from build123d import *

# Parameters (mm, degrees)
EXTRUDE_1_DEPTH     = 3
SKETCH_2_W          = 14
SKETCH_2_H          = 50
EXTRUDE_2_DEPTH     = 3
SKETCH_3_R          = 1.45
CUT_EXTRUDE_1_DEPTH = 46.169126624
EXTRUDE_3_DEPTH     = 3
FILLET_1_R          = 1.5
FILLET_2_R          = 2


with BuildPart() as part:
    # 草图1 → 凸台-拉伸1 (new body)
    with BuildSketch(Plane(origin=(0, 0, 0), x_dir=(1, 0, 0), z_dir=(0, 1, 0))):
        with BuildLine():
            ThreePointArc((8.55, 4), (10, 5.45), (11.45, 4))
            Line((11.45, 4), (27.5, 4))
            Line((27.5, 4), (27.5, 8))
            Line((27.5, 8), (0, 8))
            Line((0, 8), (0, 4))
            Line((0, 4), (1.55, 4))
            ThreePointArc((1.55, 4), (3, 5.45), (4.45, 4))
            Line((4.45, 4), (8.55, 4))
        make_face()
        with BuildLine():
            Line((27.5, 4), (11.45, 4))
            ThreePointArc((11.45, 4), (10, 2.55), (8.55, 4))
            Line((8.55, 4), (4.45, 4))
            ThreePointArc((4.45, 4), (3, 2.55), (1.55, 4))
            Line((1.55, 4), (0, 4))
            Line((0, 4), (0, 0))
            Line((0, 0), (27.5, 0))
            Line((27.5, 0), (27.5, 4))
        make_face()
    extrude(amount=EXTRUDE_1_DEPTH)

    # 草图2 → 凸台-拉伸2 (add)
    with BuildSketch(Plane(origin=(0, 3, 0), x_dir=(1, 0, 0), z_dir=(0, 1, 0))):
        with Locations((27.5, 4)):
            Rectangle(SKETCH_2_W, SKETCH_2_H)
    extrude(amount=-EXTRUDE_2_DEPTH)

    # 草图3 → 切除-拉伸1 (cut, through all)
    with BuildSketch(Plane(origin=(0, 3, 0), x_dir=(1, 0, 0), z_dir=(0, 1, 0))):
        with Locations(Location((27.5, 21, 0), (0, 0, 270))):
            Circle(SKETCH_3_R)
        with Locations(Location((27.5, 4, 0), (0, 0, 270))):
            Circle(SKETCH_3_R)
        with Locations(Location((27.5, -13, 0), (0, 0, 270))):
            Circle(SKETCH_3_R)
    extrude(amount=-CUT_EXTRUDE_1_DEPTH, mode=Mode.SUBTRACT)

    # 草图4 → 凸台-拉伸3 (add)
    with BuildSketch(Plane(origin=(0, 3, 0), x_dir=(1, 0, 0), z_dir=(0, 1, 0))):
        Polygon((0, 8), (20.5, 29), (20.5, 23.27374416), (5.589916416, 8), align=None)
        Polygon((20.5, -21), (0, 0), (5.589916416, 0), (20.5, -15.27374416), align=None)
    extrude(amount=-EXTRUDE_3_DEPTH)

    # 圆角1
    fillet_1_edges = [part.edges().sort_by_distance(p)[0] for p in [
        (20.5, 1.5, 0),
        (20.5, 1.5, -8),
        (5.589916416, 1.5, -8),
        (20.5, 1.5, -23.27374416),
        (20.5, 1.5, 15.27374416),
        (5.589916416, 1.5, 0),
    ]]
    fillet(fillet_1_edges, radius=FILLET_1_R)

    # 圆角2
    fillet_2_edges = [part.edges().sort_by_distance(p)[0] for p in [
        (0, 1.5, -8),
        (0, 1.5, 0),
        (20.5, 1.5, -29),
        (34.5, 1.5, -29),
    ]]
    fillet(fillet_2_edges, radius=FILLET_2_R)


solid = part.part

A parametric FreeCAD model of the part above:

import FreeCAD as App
import Part
import Sketcher

V = App.Vector
Q = App.Units.Quantity


def edges_at(feature, points):
    """Names of the edges that pass closest to the given points."""
    edges = feature.Shape.Edges
    near = lambda p: min(range(len(edges)), key=lambda i: edges[i].distToShape(Part.Vertex(*p))[0])
    return sorted({f"Edge{near(p) + 1}" for p in points})

doc = App.newDocument("Part")
body = doc.addObject("PartDesign::Body", "Body")

# Sketch on XZ plane
sketch1 = body.newObject("Sketcher::SketchObject", "Sketch")
sketch1.AttachmentSupport = (doc.getObject("XZ_Plane"), [""])
sketch1.MapMode = "FlatFace"
sketch1.addGeometry(Part.LineSegment(V(27.5, -8, 0), V(0, -8, 0)), False)
sketch1.addGeometry(Part.LineSegment(V(0, -8, 0), V(0, 0, 0)), False)
sketch1.addGeometry(Part.LineSegment(V(0, 0, 0), V(27.5, 0, 0)), False)
sketch1.addGeometry(Part.LineSegment(V(27.5, 0, 0), V(27.5, -8, 0)), False)
sketch1.addGeometry(Part.Circle(V(10, -4, 0), V(0, 0, 1), 1.4), False)
sketch1.addGeometry(Part.Circle(V(3, -4, 0), V(0, 0, 1), 1.4), False)
sketch1.addConstraint(Sketcher.Constraint("Coincident", 0, 2, 1, 1))
sketch1.addConstraint(Sketcher.Constraint("Coincident", 1, 2, 2, 1))
sketch1.addConstraint(Sketcher.Constraint("Coincident", 2, 2, 3, 1))
sketch1.addConstraint(Sketcher.Constraint("Coincident", 3, 2, 0, 1))
sketch1.addConstraint(Sketcher.Constraint("Horizontal", 0))
sketch1.addConstraint(Sketcher.Constraint("Vertical", 1))
sketch1.addConstraint(Sketcher.Constraint("Horizontal", 2))
sketch1.addConstraint(Sketcher.Constraint("Vertical", 3))
sketch1.addConstraint(Sketcher.Constraint("Coincident", 1, 2, -1, 1))
sketch1.addConstraint(Sketcher.Constraint("Equal", 4, 5))
sketch1.addConstraint(Sketcher.Constraint("Horizontal", 4, 3, 5, 3))
sketch1.addConstraint(Sketcher.Constraint("Diameter", 4, Q("2.9 mm")))
sketch1.addConstraint(Sketcher.Constraint("DistanceY", 1, 1, 1, 2, Q("8 mm")))
sketch1.addConstraint(Sketcher.Constraint("DistanceX", 0, 2, 0, 1, Q("27.5 mm")))
sketch1.addConstraint(Sketcher.Constraint("DistanceX", -1, 1, 4, 3, Q("10 mm")))
sketch1.addConstraint(Sketcher.Constraint("DistanceY", 4, 3, -1, 1, Q("4 mm")))
sketch1.addConstraint(Sketcher.Constraint("DistanceX", -1, 1, 5, 3, Q("3 mm")))
pad1 = body.newObject("PartDesign::Pad", "Pad")
pad1.Profile = sketch1
pad1.Length = 3
pad1.Reversed = True

# Sketch on XZ plane
sketch2 = body.newObject("Sketcher::SketchObject", "Sketch001")
sketch2.AttachmentSupport = (doc.getObject("XZ_Plane"), [""])
sketch2.MapMode = "FlatFace"
sketch2.AttachmentOffset = App.Placement(V(0, 0, -3), App.Rotation())
sketch2.addGeometry(Part.LineSegment(V(20, -29, 0), V(20, 21, 0)), False)
sketch2.addGeometry(Part.LineSegment(V(20, 21, 0), V(34, 21, 0)), False)
sketch2.addGeometry(Part.LineSegment(V(34, 21, 0), V(34, -29, 0)), False)
sketch2.addGeometry(Part.LineSegment(V(34, -29, 0), V(20, -29, 0)), False)
sketch2.addConstraint(Sketcher.Constraint("Coincident", 0, 2, 1, 1))
sketch2.addConstraint(Sketcher.Constraint("Coincident", 1, 2, 2, 1))
sketch2.addConstraint(Sketcher.Constraint("Coincident", 2, 2, 3, 1))
sketch2.addConstraint(Sketcher.Constraint("Coincident", 3, 2, 0, 1))
sketch2.addConstraint(Sketcher.Constraint("Vertical", 0))
sketch2.addConstraint(Sketcher.Constraint("Horizontal", 1))
sketch2.addConstraint(Sketcher.Constraint("Vertical", 2))
sketch2.addConstraint(Sketcher.Constraint("Horizontal", 3))
sketch2.addConstraint(Sketcher.Constraint("DistanceX", 1, 1, 1, 2, Q("14 mm")))
sketch2.addConstraint(Sketcher.Constraint("DistanceY", 0, 1, 0, 2, Q("50 mm")))
sketch2.addConstraint(Sketcher.Constraint("DistanceY", -1, 1, 0, 2, Q("21 mm")))
sketch2.addConstraint(Sketcher.Constraint("DistanceX", -1, 1, 0, 2, Q("20.5 mm")))
pad2 = body.newObject("PartDesign::Pad", "Pad001")
pad2.Profile = sketch2
pad2.Length = 3

# Sketch on XZ plane
sketch3 = body.newObject("Sketcher::SketchObject", "Sketch002")
sketch3.AttachmentSupport = (doc.getObject("XZ_Plane"), [""])
sketch3.MapMode = "FlatFace"
sketch3.AttachmentOffset = App.Placement(V(0, 0, -3), App.Rotation())
sketch3.addGeometry(Part.Circle(V(27.5, -21, 0), V(0, 0, 1), 1.4), False)
sketch3.addGeometry(Part.Circle(V(27.5, -4, 0), V(0, 0, 1), 1.4), False)
sketch3.addGeometry(Part.Circle(V(27.5, 13, 0), V(0, 0, 1), 1.4), False)
sketch3.addConstraint(Sketcher.Constraint("Equal", 0, 1))
sketch3.addConstraint(Sketcher.Constraint("Equal", 1, 2))
sketch3.addConstraint(Sketcher.Constraint("Vertical", 0, 3, 1, 3))
sketch3.addConstraint(Sketcher.Constraint("Vertical", 1, 3, 2, 3))
sketch3.addConstraint(Sketcher.Constraint("Diameter", 0, Q("2.9 mm")))
sketch3.addConstraint(Sketcher.Constraint("DistanceY", 0, 3, -1, 1, Q("21 mm")))
sketch3.addConstraint(Sketcher.Constraint("DistanceY", 1, 3, -1, 1, Q("4 mm")))
sketch3.addConstraint(Sketcher.Constraint("DistanceY", -1, 1, 2, 3, Q("13 mm")))
sketch3.addConstraint(Sketcher.Constraint("DistanceX", -1, 1, 0, 3, Q("27.5 mm")))
pocket1 = body.newObject("PartDesign::Pocket", "Pocket")
pocket1.Profile = sketch3
pocket1.Type = "ThroughAll"
pocket1.Reversed = True

# Sketch on XZ plane
sketch4 = body.newObject("Sketcher::SketchObject", "Sketch003")
sketch4.AttachmentSupport = (doc.getObject("XZ_Plane"), [""])
sketch4.MapMode = "FlatFace"
sketch4.AttachmentOffset = App.Placement(V(0, 0, -3), App.Rotation())
sketch4.addGeometry(Part.LineSegment(V(20, -29, 0), V(0, -8, 0)), False)
sketch4.addGeometry(Part.LineSegment(V(0, -8, 0), V(6, -8, 0)), False)
sketch4.addGeometry(Part.LineSegment(V(6, -8, 0), V(20, -23, 0)), False)
sketch4.addGeometry(Part.LineSegment(V(20, -23, 0), V(20, -29, 0)), False)
sketch4.addGeometry(Part.LineSegment(V(0, 0, 0), V(20, 21, 0)), False)
sketch4.addGeometry(Part.LineSegment(V(20, 21, 0), V(20, 15, 0)), False)
sketch4.addGeometry(Part.LineSegment(V(20, 15, 0), V(6, 0, 0)), False)
sketch4.addGeometry(Part.LineSegment(V(6, 0, 0), V(0, 0, 0)), False)
sketch4.addConstraint(Sketcher.Constraint("Coincident", 0, 2, 1, 1))
sketch4.addConstraint(Sketcher.Constraint("Coincident", 1, 2, 2, 1))
sketch4.addConstraint(Sketcher.Constraint("Coincident", 2, 2, 3, 1))
sketch4.addConstraint(Sketcher.Constraint("Coincident", 3, 2, 0, 1))
sketch4.addConstraint(Sketcher.Constraint("Coincident", 4, 2, 5, 1))
sketch4.addConstraint(Sketcher.Constraint("Coincident", 5, 2, 6, 1))
sketch4.addConstraint(Sketcher.Constraint("Coincident", 6, 2, 7, 1))
sketch4.addConstraint(Sketcher.Constraint("Coincident", 7, 2, 4, 1))
sketch4.addConstraint(Sketcher.Constraint("Horizontal", 1))
sketch4.addConstraint(Sketcher.Constraint("Vertical", 3))
sketch4.addConstraint(Sketcher.Constraint("Vertical", 5))
sketch4.addConstraint(Sketcher.Constraint("Horizontal", 7))
sketch4.addConstraint(Sketcher.Constraint("Coincident", 7, 2, -1, 1))
sketch4.addConstraint(Sketcher.Constraint("PointOnObject", 0, 2, -2))
sketch4.addConstraint(Sketcher.Constraint("Parallel", 0, 2))
sketch4.addConstraint(Sketcher.Constraint("Parallel", 4, 6))
sketch4.addConstraint(Sketcher.Constraint("Vertical", 3, 2, 4, 2))
sketch4.addConstraint(Sketcher.Constraint("Vertical", 1, 2, 6, 2))
sketch4.addConstraint(Sketcher.Constraint("Equal", 3, 5))
sketch4.addConstraint(Sketcher.Constraint("DistanceY", 0, 2, -1, 1, Q("8 mm")))
sketch4.addConstraint(Sketcher.Constraint("DistanceY", 3, 2, -1, 1, Q("29 mm")))
sketch4.addConstraint(Sketcher.Constraint("DistanceX", -1, 1, 2, 2, Q("20.5 mm")))
sketch4.addConstraint(Sketcher.Constraint("Distance", 2, Q("21.344738 mm")))
pad3 = body.newObject("PartDesign::Pad", "Pad002")
pad3.Profile = sketch4
pad3.Length = 3
doc.recompute()

fillet = body.newObject("PartDesign::Fillet", "Fillet")
fillet.Base = (pad3, edges_at(pad3, [
    (20.5, 1.5, 0),
    (20.5, 1.5, -8),
    (5.59, 1.5, -8),
    (20.5, 1.5, -23.274),
    (20.5, 1.5, 15.274),
    (5.59, 1.5, 0),
]))
fillet.Radius = 1.5
doc.recompute()

fillet2 = body.newObject("PartDesign::Fillet", "Fillet001")
fillet2.Base = (fillet, edges_at(fillet, [
    (0, 1.5, -8),
    (0, 1.5, 0),
    (20.5, 1.5, -29),
    (34.5, 1.5, -29),
]))
fillet2.Radius = 2

doc.recompute()
